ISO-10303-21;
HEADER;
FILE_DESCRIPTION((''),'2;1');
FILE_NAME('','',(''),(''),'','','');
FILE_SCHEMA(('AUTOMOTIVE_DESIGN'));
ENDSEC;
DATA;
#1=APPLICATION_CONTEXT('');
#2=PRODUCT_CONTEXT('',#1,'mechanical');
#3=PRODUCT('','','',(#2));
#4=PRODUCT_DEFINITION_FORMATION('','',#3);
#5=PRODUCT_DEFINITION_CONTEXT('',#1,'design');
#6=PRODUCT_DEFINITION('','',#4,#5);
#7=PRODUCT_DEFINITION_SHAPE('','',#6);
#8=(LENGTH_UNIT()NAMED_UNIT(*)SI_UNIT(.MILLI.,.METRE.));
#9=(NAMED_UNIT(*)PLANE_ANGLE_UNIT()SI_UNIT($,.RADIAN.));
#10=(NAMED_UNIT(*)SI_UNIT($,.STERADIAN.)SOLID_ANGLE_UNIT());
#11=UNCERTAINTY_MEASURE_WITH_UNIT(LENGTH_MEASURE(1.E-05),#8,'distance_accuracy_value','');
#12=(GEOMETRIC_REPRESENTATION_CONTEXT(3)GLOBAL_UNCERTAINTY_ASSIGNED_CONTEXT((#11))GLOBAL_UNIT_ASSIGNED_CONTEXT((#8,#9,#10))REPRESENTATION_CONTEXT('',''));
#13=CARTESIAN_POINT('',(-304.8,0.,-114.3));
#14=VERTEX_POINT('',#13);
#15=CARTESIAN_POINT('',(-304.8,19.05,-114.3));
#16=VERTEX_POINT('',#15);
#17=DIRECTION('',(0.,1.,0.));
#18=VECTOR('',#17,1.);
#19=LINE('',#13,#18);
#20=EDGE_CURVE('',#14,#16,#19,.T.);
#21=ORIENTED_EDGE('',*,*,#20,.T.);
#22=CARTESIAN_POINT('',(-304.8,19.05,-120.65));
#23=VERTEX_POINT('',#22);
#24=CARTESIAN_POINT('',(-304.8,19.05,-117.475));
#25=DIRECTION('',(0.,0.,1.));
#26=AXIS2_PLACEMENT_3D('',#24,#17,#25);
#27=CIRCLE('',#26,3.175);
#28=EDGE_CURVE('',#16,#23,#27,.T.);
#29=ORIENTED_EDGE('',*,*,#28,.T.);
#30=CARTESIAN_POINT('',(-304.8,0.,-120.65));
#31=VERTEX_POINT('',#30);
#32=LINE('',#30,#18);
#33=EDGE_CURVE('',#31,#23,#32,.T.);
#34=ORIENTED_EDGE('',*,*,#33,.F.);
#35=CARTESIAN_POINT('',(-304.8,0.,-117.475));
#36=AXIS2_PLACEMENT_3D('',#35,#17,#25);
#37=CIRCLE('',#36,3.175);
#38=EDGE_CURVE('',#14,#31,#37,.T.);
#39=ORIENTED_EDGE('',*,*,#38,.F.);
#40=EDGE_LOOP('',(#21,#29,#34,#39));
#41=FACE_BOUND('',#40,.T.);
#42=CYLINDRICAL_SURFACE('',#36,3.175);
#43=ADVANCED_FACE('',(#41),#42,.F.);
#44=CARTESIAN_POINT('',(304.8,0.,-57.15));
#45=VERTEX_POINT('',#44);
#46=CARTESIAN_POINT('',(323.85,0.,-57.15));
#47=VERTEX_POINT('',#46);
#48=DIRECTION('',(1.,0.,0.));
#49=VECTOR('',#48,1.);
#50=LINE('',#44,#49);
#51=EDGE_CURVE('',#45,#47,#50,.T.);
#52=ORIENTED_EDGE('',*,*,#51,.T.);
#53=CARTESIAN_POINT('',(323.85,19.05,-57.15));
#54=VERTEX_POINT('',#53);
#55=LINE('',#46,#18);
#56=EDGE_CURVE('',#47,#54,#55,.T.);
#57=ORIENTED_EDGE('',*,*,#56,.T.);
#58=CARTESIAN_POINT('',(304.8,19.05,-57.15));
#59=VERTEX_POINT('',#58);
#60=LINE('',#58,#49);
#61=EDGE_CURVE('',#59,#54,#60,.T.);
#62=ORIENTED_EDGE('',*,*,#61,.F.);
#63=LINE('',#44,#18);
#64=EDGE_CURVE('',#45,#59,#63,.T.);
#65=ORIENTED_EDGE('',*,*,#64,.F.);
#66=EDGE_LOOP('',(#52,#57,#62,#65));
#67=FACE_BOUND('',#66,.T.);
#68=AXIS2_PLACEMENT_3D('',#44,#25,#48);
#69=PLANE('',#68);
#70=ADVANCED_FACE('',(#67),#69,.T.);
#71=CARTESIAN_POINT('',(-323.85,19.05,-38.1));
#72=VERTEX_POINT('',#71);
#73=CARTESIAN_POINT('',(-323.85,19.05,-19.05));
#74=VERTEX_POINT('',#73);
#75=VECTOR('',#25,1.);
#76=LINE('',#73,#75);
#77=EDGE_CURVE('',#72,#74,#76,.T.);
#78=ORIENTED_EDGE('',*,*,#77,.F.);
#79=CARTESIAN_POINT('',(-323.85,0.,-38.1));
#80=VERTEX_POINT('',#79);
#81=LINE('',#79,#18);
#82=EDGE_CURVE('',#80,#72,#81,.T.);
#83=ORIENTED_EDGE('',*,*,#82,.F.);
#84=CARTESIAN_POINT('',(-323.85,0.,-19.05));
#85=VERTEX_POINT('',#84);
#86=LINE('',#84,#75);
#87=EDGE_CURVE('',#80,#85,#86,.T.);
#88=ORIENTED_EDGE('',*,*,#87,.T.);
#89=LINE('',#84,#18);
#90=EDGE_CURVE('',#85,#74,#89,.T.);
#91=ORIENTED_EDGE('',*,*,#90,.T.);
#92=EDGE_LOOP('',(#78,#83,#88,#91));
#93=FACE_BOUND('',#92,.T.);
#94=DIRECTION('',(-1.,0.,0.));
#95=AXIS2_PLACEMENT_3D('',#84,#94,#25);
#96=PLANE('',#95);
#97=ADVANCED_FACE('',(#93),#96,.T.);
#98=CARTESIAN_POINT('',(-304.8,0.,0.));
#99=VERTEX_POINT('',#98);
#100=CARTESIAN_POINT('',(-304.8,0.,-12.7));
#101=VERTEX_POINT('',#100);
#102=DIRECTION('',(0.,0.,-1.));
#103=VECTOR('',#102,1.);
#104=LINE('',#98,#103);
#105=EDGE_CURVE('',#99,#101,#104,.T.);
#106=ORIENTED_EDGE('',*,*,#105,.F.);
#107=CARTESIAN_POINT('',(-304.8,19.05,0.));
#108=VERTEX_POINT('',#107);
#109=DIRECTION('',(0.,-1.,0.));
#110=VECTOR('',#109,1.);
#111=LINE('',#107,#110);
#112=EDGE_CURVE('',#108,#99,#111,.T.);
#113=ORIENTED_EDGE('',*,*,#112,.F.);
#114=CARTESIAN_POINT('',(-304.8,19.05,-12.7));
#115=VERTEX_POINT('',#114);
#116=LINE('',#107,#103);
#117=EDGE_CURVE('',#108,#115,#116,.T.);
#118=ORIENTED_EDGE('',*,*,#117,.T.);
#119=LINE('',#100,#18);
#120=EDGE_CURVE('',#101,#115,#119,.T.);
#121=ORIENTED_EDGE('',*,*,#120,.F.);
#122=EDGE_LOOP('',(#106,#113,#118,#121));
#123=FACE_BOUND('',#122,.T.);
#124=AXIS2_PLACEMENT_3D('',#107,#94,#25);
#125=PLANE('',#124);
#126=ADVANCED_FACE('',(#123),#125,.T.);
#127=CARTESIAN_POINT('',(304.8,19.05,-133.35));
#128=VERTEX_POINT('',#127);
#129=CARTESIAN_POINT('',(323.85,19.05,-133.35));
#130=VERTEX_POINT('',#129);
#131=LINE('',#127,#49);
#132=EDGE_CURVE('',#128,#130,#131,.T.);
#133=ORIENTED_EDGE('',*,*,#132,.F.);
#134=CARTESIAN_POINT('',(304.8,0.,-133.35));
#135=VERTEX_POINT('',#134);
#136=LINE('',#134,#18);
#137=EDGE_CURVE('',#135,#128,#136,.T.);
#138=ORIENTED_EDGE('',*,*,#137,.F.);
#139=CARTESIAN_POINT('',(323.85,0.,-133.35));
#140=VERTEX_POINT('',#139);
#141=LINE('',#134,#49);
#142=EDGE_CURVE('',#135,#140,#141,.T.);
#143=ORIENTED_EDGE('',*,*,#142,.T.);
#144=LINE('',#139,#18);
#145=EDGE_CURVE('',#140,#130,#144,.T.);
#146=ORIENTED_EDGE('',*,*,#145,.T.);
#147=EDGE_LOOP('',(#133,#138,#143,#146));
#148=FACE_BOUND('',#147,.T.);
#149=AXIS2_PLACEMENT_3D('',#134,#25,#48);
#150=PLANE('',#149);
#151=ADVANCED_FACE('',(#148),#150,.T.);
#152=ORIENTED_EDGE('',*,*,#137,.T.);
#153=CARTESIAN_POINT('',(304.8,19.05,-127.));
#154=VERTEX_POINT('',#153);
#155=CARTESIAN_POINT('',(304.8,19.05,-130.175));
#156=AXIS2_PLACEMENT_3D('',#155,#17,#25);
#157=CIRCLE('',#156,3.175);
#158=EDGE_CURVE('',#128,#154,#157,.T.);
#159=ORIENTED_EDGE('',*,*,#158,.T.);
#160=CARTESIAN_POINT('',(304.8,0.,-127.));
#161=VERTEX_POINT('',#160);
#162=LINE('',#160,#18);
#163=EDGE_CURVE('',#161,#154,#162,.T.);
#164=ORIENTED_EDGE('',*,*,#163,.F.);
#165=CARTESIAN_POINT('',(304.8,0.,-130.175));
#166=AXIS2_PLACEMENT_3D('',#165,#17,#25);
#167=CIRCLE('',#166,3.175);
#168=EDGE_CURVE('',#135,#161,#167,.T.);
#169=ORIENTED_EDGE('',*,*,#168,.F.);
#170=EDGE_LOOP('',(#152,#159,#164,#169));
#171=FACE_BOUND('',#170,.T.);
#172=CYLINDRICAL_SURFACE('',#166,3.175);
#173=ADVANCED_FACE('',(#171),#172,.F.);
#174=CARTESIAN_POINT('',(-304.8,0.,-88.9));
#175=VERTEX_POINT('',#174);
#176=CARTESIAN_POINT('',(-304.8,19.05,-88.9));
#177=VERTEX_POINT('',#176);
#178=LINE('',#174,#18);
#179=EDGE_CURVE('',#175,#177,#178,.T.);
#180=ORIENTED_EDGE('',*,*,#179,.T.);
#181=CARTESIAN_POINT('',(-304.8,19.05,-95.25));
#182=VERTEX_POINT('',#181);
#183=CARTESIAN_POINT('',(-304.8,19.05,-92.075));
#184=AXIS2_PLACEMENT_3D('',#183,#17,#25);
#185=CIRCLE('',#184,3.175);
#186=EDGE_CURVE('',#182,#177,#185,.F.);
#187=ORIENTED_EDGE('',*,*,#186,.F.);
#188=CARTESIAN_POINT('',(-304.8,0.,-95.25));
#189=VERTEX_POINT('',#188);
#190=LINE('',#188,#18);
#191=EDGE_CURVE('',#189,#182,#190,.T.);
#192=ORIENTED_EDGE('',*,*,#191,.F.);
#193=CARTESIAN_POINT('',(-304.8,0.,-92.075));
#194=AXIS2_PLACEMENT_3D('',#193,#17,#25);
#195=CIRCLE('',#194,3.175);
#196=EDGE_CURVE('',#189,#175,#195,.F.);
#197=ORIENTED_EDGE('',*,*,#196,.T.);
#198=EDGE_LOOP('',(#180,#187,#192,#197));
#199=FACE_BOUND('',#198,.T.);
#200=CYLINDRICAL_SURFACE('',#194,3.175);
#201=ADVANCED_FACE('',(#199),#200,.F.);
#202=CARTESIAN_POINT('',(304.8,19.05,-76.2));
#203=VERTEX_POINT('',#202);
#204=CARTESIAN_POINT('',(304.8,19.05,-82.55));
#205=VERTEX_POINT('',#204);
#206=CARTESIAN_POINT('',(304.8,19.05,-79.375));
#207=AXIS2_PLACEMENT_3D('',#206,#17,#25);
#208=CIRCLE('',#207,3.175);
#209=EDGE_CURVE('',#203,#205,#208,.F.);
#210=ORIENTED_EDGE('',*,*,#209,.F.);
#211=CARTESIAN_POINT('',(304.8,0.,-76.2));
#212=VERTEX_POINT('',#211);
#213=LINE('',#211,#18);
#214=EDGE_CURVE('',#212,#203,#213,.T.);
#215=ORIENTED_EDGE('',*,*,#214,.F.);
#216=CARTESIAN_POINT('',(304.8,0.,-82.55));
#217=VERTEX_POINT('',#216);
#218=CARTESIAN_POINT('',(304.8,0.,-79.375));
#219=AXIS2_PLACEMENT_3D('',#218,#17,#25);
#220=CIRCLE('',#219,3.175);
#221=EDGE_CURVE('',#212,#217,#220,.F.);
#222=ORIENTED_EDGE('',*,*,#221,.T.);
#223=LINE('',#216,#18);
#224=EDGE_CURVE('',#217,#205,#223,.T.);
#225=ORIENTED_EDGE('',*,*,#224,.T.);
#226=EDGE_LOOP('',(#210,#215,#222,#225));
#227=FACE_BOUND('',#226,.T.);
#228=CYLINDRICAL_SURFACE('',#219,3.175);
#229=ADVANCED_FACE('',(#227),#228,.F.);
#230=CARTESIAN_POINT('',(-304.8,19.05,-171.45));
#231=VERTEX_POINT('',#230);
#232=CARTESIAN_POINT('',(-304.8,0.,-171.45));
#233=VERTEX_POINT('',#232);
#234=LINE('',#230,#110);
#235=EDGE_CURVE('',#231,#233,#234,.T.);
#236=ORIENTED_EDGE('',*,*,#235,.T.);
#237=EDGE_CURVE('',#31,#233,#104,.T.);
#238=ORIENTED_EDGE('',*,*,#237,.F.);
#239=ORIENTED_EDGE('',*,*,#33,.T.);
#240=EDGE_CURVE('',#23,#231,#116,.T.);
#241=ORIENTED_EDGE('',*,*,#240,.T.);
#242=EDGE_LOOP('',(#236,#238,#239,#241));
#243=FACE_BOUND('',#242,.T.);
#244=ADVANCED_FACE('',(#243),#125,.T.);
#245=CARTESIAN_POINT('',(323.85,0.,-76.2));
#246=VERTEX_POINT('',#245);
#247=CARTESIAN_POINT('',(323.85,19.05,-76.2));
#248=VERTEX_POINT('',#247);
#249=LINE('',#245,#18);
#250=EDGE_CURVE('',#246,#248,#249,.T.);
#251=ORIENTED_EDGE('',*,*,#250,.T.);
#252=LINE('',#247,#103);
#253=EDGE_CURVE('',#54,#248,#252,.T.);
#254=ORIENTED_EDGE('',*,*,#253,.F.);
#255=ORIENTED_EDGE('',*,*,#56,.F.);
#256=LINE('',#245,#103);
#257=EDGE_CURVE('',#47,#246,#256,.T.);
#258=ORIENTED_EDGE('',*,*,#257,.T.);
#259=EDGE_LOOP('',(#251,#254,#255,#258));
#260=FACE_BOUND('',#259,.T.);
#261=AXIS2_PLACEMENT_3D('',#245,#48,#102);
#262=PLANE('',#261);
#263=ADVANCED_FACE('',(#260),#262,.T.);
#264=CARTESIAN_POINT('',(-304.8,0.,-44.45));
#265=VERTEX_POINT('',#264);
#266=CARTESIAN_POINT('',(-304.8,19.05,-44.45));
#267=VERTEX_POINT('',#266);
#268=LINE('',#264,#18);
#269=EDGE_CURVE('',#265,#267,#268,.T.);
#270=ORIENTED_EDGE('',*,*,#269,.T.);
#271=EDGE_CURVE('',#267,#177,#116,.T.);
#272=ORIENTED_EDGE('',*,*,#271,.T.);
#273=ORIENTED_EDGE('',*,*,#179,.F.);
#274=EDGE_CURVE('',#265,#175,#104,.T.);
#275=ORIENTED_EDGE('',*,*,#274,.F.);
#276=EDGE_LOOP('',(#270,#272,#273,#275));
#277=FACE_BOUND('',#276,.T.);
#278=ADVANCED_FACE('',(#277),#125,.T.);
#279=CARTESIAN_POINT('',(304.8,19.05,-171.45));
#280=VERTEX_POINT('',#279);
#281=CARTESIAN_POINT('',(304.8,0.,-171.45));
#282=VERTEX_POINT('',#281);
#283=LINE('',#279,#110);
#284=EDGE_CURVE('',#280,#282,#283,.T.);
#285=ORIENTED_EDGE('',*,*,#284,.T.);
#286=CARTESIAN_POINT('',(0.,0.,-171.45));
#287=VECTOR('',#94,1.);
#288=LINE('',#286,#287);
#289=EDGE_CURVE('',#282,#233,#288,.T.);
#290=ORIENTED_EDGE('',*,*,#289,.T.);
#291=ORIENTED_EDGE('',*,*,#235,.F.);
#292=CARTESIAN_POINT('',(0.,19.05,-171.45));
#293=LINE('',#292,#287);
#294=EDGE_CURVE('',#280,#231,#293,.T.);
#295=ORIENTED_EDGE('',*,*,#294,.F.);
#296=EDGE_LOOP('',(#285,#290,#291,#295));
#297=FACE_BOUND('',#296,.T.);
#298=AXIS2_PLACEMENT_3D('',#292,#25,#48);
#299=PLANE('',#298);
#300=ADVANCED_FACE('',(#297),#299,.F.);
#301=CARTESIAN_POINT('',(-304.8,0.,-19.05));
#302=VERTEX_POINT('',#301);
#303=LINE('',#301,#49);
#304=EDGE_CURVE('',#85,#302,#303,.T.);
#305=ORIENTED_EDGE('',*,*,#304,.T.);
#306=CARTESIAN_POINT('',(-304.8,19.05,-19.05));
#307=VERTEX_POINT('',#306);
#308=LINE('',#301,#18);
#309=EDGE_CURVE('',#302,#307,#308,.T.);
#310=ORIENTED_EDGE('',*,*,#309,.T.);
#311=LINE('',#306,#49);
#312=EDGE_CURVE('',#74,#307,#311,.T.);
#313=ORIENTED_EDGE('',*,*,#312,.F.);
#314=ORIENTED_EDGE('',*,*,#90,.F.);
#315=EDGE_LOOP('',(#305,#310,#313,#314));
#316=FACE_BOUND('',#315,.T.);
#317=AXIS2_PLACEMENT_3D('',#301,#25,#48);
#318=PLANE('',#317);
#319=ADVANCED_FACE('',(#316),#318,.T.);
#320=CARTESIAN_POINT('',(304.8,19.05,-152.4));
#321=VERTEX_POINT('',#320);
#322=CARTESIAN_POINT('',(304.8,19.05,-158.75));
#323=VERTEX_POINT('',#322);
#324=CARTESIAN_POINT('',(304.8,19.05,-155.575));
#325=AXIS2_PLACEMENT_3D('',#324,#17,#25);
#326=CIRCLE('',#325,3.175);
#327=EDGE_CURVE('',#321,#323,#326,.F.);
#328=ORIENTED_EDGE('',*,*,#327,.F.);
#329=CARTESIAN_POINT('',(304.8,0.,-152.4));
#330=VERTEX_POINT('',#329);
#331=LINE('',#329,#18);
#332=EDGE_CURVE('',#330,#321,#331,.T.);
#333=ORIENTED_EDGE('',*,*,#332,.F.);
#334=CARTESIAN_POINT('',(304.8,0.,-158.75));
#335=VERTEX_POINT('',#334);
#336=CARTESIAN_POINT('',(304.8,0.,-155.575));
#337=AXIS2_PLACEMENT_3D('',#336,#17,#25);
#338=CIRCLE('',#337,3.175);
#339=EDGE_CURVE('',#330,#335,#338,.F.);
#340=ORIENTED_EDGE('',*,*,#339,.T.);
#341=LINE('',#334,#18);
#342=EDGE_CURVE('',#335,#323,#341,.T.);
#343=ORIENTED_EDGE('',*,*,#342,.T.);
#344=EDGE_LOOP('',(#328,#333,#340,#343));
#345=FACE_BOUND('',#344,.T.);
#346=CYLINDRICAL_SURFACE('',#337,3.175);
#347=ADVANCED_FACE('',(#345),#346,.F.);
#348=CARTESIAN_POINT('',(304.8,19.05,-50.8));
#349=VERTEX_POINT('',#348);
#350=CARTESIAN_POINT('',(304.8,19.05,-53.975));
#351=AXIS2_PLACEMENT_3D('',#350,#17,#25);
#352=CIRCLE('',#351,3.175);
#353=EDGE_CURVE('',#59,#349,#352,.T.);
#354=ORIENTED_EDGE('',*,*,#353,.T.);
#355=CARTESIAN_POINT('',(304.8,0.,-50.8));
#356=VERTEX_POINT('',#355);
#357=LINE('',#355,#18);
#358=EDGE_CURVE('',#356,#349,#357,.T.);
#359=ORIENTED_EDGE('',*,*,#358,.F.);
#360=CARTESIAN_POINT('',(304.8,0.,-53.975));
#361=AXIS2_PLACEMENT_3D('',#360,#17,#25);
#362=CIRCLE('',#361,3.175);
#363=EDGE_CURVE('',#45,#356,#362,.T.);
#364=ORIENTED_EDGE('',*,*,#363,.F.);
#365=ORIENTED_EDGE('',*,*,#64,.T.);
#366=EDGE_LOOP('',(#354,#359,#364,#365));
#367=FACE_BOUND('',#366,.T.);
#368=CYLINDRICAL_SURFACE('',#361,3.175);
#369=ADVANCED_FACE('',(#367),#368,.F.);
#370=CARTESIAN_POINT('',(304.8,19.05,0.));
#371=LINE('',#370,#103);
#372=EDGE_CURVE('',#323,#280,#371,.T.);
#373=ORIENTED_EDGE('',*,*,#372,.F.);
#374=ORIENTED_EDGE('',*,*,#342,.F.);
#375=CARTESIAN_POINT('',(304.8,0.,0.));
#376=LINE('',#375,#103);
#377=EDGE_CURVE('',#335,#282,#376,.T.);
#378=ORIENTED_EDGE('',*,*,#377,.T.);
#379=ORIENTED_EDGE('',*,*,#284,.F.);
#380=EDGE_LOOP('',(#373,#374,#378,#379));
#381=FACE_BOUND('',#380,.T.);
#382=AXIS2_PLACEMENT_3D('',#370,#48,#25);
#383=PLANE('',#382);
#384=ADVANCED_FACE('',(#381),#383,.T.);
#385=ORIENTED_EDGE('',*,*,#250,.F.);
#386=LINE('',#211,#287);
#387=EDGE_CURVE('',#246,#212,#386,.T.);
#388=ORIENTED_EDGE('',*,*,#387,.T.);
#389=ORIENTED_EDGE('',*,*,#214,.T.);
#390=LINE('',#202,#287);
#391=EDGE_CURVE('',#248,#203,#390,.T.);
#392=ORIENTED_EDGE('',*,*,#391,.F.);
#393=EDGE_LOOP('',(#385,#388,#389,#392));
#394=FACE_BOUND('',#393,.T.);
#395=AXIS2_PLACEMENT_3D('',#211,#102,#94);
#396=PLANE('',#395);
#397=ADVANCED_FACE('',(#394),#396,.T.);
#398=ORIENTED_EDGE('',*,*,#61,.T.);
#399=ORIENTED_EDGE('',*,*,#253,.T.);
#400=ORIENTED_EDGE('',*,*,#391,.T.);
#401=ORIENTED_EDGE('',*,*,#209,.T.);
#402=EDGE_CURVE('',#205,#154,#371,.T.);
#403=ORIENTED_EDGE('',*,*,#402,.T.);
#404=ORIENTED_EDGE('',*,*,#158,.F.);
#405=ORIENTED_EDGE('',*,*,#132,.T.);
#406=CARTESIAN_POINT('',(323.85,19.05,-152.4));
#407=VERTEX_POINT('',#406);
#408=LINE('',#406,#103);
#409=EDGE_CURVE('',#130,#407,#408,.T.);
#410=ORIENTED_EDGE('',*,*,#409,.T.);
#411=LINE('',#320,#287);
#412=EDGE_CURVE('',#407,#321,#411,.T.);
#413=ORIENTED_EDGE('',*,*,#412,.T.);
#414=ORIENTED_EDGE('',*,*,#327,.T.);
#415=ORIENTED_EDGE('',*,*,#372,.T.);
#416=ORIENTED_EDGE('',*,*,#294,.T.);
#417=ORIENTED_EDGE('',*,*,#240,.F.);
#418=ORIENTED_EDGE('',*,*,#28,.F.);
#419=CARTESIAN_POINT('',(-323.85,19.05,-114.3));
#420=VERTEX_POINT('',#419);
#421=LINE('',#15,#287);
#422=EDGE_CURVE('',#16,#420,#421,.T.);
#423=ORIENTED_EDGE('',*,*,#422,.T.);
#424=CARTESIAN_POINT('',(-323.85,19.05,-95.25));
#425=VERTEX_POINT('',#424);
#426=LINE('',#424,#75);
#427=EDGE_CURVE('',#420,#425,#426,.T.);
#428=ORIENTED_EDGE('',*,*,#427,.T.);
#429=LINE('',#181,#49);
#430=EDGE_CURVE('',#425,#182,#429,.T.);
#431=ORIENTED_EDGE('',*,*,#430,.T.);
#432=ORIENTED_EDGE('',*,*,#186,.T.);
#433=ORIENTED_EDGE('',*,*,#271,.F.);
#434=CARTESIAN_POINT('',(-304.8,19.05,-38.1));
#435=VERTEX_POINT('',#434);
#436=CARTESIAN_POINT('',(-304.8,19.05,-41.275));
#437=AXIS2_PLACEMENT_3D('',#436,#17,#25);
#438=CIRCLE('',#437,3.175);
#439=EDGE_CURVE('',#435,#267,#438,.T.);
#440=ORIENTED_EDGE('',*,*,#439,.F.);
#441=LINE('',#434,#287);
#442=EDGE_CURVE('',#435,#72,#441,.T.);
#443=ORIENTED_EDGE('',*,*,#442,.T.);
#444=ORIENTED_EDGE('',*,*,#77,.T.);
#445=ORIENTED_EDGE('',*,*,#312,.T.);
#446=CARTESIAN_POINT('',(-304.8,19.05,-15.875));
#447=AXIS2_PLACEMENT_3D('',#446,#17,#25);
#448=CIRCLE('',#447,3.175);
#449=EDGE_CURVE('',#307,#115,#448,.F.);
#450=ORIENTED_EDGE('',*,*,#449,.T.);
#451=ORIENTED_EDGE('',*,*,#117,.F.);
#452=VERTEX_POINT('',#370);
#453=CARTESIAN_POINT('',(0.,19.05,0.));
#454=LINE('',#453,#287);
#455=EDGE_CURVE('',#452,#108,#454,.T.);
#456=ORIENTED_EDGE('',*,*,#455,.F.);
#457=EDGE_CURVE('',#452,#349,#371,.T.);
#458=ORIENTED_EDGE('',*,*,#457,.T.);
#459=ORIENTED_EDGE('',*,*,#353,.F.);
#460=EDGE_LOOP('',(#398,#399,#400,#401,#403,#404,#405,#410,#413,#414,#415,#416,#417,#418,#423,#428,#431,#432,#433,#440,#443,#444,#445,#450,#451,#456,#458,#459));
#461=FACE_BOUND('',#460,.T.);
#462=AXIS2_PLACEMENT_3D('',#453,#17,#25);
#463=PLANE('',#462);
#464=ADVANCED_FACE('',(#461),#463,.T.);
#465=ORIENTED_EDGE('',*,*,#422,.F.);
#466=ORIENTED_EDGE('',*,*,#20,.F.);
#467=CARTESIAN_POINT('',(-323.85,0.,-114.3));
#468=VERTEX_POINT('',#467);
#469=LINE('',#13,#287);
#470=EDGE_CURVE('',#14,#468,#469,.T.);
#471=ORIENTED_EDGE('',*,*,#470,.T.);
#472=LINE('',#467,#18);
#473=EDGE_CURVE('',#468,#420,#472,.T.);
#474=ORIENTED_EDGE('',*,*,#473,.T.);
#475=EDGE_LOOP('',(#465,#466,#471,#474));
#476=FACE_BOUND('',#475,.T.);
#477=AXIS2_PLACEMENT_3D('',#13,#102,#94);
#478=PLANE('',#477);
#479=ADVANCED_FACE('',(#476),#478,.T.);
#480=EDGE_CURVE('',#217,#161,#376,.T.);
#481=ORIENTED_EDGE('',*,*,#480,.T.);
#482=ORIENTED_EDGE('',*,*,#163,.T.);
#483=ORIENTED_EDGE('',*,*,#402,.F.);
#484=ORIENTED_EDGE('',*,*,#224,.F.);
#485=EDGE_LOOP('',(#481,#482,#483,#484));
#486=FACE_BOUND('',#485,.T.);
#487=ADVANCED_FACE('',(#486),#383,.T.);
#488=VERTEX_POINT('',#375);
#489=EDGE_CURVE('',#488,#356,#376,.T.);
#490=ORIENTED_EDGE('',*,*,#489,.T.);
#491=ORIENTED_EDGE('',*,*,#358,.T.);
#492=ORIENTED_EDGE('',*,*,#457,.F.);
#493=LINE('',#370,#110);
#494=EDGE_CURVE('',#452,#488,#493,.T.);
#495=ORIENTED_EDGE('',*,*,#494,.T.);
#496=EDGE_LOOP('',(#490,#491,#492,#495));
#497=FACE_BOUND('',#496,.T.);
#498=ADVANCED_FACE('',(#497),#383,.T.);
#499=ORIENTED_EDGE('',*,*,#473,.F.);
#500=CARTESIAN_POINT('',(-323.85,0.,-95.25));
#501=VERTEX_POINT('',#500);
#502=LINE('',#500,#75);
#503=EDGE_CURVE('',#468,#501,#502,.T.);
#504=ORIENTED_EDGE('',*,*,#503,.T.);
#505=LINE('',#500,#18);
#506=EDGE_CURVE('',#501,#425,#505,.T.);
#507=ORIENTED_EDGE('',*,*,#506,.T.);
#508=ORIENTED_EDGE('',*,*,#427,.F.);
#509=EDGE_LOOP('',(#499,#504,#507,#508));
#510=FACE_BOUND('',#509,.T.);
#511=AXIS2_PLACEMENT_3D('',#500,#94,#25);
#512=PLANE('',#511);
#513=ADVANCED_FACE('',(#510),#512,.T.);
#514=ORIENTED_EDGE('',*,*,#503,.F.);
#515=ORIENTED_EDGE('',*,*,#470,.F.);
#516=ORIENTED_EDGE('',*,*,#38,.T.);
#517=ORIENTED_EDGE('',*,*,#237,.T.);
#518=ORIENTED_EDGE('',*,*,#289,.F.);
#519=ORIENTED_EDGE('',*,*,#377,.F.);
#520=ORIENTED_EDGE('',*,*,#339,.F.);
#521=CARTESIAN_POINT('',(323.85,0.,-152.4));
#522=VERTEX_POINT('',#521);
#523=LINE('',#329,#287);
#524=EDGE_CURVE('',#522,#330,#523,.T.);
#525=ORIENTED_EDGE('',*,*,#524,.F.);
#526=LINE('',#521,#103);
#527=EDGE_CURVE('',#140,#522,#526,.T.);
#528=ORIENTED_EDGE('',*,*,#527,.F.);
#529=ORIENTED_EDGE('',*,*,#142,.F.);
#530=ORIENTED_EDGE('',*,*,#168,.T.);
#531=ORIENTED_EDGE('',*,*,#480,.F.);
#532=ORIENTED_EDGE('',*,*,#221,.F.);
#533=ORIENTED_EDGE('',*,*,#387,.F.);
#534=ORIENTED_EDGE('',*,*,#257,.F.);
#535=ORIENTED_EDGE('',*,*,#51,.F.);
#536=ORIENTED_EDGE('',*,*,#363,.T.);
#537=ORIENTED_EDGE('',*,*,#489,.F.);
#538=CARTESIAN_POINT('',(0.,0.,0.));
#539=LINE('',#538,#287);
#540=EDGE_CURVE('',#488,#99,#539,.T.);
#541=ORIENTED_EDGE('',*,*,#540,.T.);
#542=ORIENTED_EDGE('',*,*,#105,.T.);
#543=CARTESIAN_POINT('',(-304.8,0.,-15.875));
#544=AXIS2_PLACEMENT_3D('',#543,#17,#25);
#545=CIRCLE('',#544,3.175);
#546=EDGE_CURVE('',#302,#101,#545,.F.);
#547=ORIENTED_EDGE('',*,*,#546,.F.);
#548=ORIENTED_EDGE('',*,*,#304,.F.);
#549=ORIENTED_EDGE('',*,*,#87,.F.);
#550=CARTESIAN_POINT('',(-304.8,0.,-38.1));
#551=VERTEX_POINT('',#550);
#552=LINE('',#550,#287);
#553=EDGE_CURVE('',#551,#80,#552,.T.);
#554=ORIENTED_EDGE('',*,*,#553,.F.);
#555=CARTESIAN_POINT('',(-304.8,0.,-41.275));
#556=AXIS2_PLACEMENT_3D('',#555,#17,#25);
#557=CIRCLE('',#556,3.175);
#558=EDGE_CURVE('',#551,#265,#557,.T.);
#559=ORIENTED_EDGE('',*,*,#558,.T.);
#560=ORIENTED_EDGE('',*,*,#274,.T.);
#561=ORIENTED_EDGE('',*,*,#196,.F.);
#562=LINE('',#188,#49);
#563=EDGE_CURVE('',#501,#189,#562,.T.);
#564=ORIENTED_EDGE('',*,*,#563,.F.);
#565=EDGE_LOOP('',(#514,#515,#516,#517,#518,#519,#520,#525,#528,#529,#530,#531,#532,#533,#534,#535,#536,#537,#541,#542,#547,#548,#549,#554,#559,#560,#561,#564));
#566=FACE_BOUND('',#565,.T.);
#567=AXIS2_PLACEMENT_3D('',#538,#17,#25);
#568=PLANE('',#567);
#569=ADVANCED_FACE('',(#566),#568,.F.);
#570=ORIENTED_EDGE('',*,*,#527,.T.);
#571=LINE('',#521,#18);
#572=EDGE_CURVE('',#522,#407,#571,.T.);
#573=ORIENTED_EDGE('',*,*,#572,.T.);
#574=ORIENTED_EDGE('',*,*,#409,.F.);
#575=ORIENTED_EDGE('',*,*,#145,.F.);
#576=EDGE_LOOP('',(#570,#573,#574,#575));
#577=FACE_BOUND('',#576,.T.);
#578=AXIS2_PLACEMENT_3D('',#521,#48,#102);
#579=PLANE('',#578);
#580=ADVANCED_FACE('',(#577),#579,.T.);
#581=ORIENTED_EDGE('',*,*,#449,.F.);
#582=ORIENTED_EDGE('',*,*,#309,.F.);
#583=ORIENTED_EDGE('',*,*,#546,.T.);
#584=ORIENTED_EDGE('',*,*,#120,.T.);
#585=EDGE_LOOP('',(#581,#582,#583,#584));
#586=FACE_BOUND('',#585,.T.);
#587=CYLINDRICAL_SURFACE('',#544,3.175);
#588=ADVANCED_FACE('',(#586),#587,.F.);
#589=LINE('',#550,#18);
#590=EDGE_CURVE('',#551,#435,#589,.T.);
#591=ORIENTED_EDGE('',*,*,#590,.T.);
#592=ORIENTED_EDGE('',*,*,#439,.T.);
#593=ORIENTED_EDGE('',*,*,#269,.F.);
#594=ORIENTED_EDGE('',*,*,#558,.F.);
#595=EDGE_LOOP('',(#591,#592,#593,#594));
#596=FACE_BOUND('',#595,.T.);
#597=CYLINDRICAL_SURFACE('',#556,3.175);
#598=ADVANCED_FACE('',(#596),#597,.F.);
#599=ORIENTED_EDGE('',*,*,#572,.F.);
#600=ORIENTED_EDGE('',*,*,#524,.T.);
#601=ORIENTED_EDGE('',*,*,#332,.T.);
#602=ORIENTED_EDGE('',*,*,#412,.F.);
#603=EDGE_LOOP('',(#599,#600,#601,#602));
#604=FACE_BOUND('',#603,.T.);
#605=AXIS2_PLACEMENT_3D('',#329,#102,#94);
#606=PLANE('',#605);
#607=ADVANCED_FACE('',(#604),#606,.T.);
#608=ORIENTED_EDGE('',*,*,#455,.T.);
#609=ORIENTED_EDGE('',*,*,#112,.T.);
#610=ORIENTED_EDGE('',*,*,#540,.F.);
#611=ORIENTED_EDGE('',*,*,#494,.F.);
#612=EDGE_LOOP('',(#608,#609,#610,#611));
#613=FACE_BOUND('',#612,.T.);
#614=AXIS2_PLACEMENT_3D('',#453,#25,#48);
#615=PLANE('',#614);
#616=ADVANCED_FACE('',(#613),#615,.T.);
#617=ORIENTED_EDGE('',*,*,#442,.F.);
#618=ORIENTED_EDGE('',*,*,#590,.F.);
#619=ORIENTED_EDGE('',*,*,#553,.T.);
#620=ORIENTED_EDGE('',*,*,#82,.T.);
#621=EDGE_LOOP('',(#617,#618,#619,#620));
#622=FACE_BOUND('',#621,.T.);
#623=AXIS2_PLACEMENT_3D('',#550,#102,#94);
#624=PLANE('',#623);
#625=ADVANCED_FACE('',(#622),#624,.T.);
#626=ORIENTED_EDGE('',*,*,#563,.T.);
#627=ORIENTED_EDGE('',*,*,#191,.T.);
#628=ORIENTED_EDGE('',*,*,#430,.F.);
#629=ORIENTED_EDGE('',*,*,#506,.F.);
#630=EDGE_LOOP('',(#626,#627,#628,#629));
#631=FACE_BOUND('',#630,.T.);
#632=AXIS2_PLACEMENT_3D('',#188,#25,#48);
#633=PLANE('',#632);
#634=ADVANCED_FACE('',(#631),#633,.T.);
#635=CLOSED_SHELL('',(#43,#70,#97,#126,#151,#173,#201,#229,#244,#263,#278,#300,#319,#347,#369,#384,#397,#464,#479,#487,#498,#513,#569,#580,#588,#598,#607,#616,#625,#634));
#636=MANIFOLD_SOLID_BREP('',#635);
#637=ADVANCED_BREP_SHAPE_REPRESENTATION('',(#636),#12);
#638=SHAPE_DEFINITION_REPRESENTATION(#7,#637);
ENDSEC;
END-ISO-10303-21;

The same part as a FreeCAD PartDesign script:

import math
import FreeCAD as App
import Part
import Sketcher

V = App.Vector
Q = App.Units.Quantity


def add_polygon(sketch, points):
    """Adds a closed chain of lines whose ends are joined by coincident constraints."""
    first, n = sketch.GeometryCount, len(points)
    for a, b in zip(points, points[1:] + points[:1]):
        sketch.addGeometry(Part.LineSegment(App.Vector(*a, 0), App.Vector(*b, 0)), False)
    for i in range(n):
        sketch.addConstraint(Sketcher.Constraint("Coincident", first + i, 2, first + (i + 1) % n, 1))

doc = App.newDocument("Part")
body = doc.addObject("PartDesign::Body", "Body")

# Sketch on XZ plane
sketch1 = doc.addObject("Sketcher::SketchObject", "Sketch")
body.addObject(sketch1)
sketch1.AttachmentSupport = (doc.XZ_Plane, [""])
sketch1.MapMode = "FlatFace"
add_polygon(sketch1, [(-305, -171), (-305, 0), (0, 0), (0, -171)])  # lines 0-3
sketch1.addConstraint([
    Sketcher.Constraint("Vertical", 0),
    Sketcher.Constraint("Horizontal", 1),
    Sketcher.Constraint("Vertical", 2),
    Sketcher.Constraint("Horizontal", 3),
    Sketcher.Constraint("Coincident", 1, 2, -1, 1),
    Sketcher.Constraint("DistanceX", 1, 1, 1, 2, Q("12 in")),
    Sketcher.Constraint("DistanceY", 0, 1, 0, 2, Q("6.75 in")),
])
pad1 = doc.addObject("PartDesign::Pad", "Pad")
body.addObject(pad1)
pad1.Profile = sketch1
pad1.Length = Q("0.75 in")
pad1.Reversed = True
body2 = doc.addObject("PartDesign::Body", "Body001")
doc.recompute()

body2.BaseFeature = body
doc.recompute()

mirroring = doc.addObject("Part::Mirroring", "Mirroring")
mirroring.Source = body
mirroring.Base = V(0, 19.05, 0)
mirroring.Normal = V(-1, 0, 0)
body3 = doc.addObject("PartDesign::Body", "Body002")
body3.BaseFeature = mirroring
boolean = doc.addObject("PartDesign::Boolean", "Boolean")
body2.addObject(boolean)
boolean.Type = "Fuse"
boolean.addObjects([body3])
doc.recompute()

# Sketch on XZ plane
sketch2 = doc.addObject("Sketcher::SketchObject", "Sketch001")
body2.addObject(sketch2)
sketch2.AttachmentSupport = (doc.getObject("XZ_Plane001"), [""])
sketch2.MapMode = "FlatFace"
sketch2.AttachmentOffset = App.Placement(V(0, 0, -0.75 * 25.4), App.Rotation())
add_polygon(sketch2, [(-324, -38), (-324, -19), (-305, -19), (-305, -38)])  # lines 0-3
add_polygon(sketch2, [(-324, -114), (-324, -95), (-305, -95), (-305, -114)])  # lines 4-7
add_polygon(sketch2, [(305, -152), (305, -133), (324, -133), (324, -152)])  # lines 8-11
add_polygon(sketch2, [(305, -76), (305, -57), (324, -57), (324, -76)])  # lines 12-15
sketch2.addConstraint([
    Sketcher.Constraint("Vertical", 0),
    Sketcher.Constraint("Horizontal", 1),
    Sketcher.Constraint("Vertical", 2),
    Sketcher.Constraint("Horizontal", 3),
    Sketcher.Constraint("Vertical", 4),
    Sketcher.Constraint("Horizontal", 5),
    Sketcher.Constraint("Vertical", 6),
    Sketcher.Constraint("Horizontal", 7),
    Sketcher.Constraint("Vertical", 8),
    Sketcher.Constraint("Horizontal", 9),
    Sketcher.Constraint("Vertical", 10),
    Sketcher.Constraint("Horizontal", 11),
    Sketcher.Constraint("Vertical", 12),
    Sketcher.Constraint("Horizontal", 13),
    Sketcher.Constraint("Vertical", 14),
    Sketcher.Constraint("Horizontal", 15),
    Sketcher.Constraint("Vertical", 3, 2, 4, 2),
    Sketcher.Constraint("Vertical", 2, 2, 5, 2),
    Sketcher.Constraint("Vertical", 11, 2, 12, 2),
    Sketcher.Constraint("Vertical", 10, 2, 13, 2),
    Sketcher.Constraint("Equal", 7, 9),
    Sketcher.Constraint("Equal", 15, 0),
    Sketcher.Constraint("Equal", 2, 4),
    Sketcher.Constraint("Equal", 6, 8),
    Sketcher.Constraint("Equal", 10, 12),
    Sketcher.Constraint("DistanceX", 1, 2, -1, 1, Q("12 in")),
    Sketcher.Constraint("DistanceX", -1, 1, 8, 2, Q("12 in")),
    Sketcher.Constraint("DistanceY", 10, 2, -1, 1, Q("6 in")),
    Sketcher.Constraint("DistanceY", 14, 2, -1, 1, Q("3 in")),
    Sketcher.Constraint("DistanceY", 4, 2, 0, 2, Q("3 in")),
    Sketcher.Constraint("DistanceX", 1, 1, 1, 2, Q("0.75 in")),
    Sketcher.Constraint("DistanceY", 2, 2, -1, 1, Q("1.5 in")),
])
pad2 = doc.addObject("PartDesign::Pad", "Pad001")
body2.addObject(pad2)
pad2.Profile = sketch2
pad2.Length = Q("0.75 in")

# Sketch on XZ plane
sketch3 = doc.addObject("Sketcher::SketchObject", "Sketch002")
body2.addObject(sketch3)
sketch3.AttachmentSupport = (doc.getObject("XZ_Plane001"), [""])
sketch3.MapMode = "FlatFace"
sketch3.AttachmentOffset = App.Placement(V(0, 0, -0.75 * 25.4), App.Rotation())
add_polygon(sketch3, [(-114, -19), (-114, 0), (-95, 0), (-95, -19)])  # lines 0-3
add_polygon(sketch3, [(-114, -171), (-114, -152), (-95, -152), (-95, -171)])  # lines 4-7
sketch3.addConstraint([
    Sketcher.Constraint("Vertical", 0),
    Sketcher.Constraint("Horizontal", 1),
    Sketcher.Constraint("Vertical", 2),
    Sketcher.Constraint("Horizontal", 3),
    Sketcher.Constraint("Vertical", 4),
    Sketcher.Constraint("Horizontal", 5),
    Sketcher.Constraint("Vertical", 6),
    Sketcher.Constraint("Horizontal", 7),
    Sketcher.Constraint("PointOnObject", 0, 2, -1),
    Sketcher.Constraint("Vertical", 3, 2, 4, 2),
    Sketcher.Constraint("Vertical", 2, 2, 5, 2),
    Sketcher.Constraint("Equal", 7, 0),
    Sketcher.Constraint("Equal", 2, 4),
    Sketcher.Constraint("DistanceY", 4, 2, -1, 1, Q("6 in")),
    Sketcher.Constraint("DistanceX", 1, 1, 1, 2, Q("0.75 in")),
    Sketcher.Constraint("DistanceX", 0, 2, -1, 1, Q("4.5 in")),
])
pocket1 = doc.addObject("PartDesign::Pocket", "Pocket")
body2.addObject(pocket1)
pocket1.Profile = sketch3
pocket1.Length = 735.857827
pocket1.Midplane = True
doc.recompute()

mirrored = doc.addObject("PartDesign::Mirrored", "Mirrored")
body2.addObject(mirrored)
mirrored.Originals = [pocket1]
mirrored.MirrorPlane = (doc.getObject("YZ_Plane001"), [""])
body2.Tip = mirrored

# Sketch on XZ plane
sketch4 = doc.addObject("Sketcher::SketchObject", "Sketch003")
body2.addObject(sketch4)
sketch4.AttachmentSupport = (doc.getObject("XZ_Plane001"), [""])
sketch4.MapMode = "FlatFace"
sketch4.AttachmentOffset = App.Placement(V(0, 0, -0.75 * 25.4), App.Rotation())
sketch4.addGeometry([
    Part.LineSegment(V(9.5, -131.5, 0), V(9.5, -141.6, 0)),  # 0
    Part.ArcOfCircle(Part.Circle(V(7.3, -143.8, 0), V(0, 0, 1), 3.2), math.radians(-135), math.radians(45)),  # 1
    Part.LineSegment(V(5, -146.1, 0), V(-5, -146.1, 0)),  # 2
    Part.ArcOfCircle(Part.Circle(V(-7.3, -143.8, 0), V(0, 0, 1), 3.2), math.radians(135), math.radians(315)),  # 3
    Part.LineSegment(V(-9.5, -141.6, 0), V(-9.5, -131.5, 0)),  # 4
    Part.ArcOfCircle(Part.Circle(V(-7.3, -129.2, 0), V(0, 0, 1), 3.2), math.radians(45), math.radians(225)),  # 5
    Part.LineSegment(V(-5, -127, 0), V(5, -127, 0)),  # 6
    Part.ArcOfCircle(Part.Circle(V(7.3, -129.2, 0), V(0, 0, 1), 3.2), math.radians(-45), math.radians(135)),  # 7
    Part.LineSegment(V(9.5, -80.7, 0), V(9.5, -90.8, 0)),  # 8
    Part.ArcOfCircle(Part.Circle(V(7.3, -93, 0), V(0, 0, 1), 3.2), math.radians(-135), math.radians(45)),  # 9
    Part.LineSegment(V(5, -95.2, 0), V(-5, -95.2, 0)),  # 10
    Part.ArcOfCircle(Part.Circle(V(-7.3, -93, 0), V(0, 0, 1), 3.2), math.radians(135), math.radians(315)),  # 11
    Part.LineSegment(V(-9.5, -90.8, 0), V(-9.5, -80.7, 0)),  # 12
    Part.ArcOfCircle(Part.Circle(V(-7.3, -78.4, 0), V(0, 0, 1), 3.2), math.radians(45), math.radians(225)),  # 13
    Part.LineSegment(V(-5, -76.2, 0), V(5, -76.2, 0)),  # 14
    Part.ArcOfCircle(Part.Circle(V(7.3, -78.4, 0), V(0, 0, 1), 3.2), math.radians(-45), math.radians(135)),  # 15
    Part.LineSegment(V(9.5, -29.9, 0), V(9.5, -40, 0)),  # 16
    Part.ArcOfCircle(Part.Circle(V(7.3, -42.2, 0), V(0, 0, 1), 3.2), math.radians(-135), math.radians(45)),  # 17
    Part.LineSegment(V(5, -44.5, 0), V(-5, -44.5, 0)),  # 18
    Part.ArcOfCircle(Part.Circle(V(-7.3, -42.2, 0), V(0, 0, 1), 3.2), math.radians(135), math.radians(315)),  # 19
    Part.LineSegment(V(-9.5, -40, 0), V(-9.5, -29.9, 0)),  # 20
    Part.ArcOfCircle(Part.Circle(V(-7.3, -27.6, 0), V(0, 0, 1), 3.2), math.radians(45), math.radians(225)),  # 21
    Part.LineSegment(V(-5, -25.4, 0), V(5, -25.4, 0)),  # 22
    Part.ArcOfCircle(Part.Circle(V(7.3, -27.6, 0), V(0, 0, 1), 3.2), math.radians(-45), math.radians(135)),  # 23
], False)
sketch4.addConstraint([
    Sketcher.Constraint("Coincident", 0, 2, 1, 2),
    Sketcher.Constraint("Coincident", 1, 1, 2, 1),
    Sketcher.Constraint("Coincident", 2, 2, 3, 2),
    Sketcher.Constraint("Coincident", 3, 1, 4, 1),
    Sketcher.Constraint("Coincident", 4, 2, 5, 2),
    Sketcher.Constraint("Coincident", 5, 1, 6, 1),
    Sketcher.Constraint("Coincident", 6, 2, 7, 2),
    Sketcher.Constraint("Coincident", 7, 1, 0, 1),
    Sketcher.Constraint("Coincident", 8, 2, 9, 2),
    Sketcher.Constraint("Coincident", 9, 1, 10, 1),
    Sketcher.Constraint("Coincident", 10, 2, 11, 2),
    Sketcher.Constraint("Coincident", 11, 1, 12, 1),
    Sketcher.Constraint("Coincident", 12, 2, 13, 2),
    Sketcher.Constraint("Coincident", 13, 1, 14, 1),
    Sketcher.Constraint("Coincident", 14, 2, 15, 2),
    Sketcher.Constraint("Coincident", 15, 1, 8, 1),
    Sketcher.Constraint("Coincident", 16, 2, 17, 2),
    Sketcher.Constraint("Coincident", 17, 1, 18, 1),
    Sketcher.Constraint("Coincident", 18, 2, 19, 2),
    Sketcher.Constraint("Coincident", 19, 1, 20, 1),
    Sketcher.Constraint("Coincident", 20, 2, 21, 2),
    Sketcher.Constraint("Coincident", 21, 1, 22, 1),
    Sketcher.Constraint("Coincident", 22, 2, 23, 2),
    Sketcher.Constraint("Coincident", 23, 1, 16, 1),
    Sketcher.Constraint("Vertical", 0),
    Sketcher.Constraint("Horizontal", 2),
    Sketcher.Constraint("Vertical", 4),
    Sketcher.Constraint("Horizontal", 6),
    Sketcher.Constraint("Vertical", 8),
    Sketcher.Constraint("Horizontal", 10),
    Sketcher.Constraint("Vertical", 12),
    Sketcher.Constraint("Horizontal", 14),
    Sketcher.Constraint("Vertical", 16),
    Sketcher.Constraint("Horizontal", 18),
    Sketcher.Constraint("Vertical", 20),
    Sketcher.Constraint("Horizontal", 22),
    Sketcher.Constraint("Equal", 1, 3),
    Sketcher.Constraint("Equal", 3, 5),
    Sketcher.Constraint("Equal", 5, 7),
    Sketcher.Constraint("Equal", 7, 9),
    Sketcher.Constraint("Equal", 9, 11),
    Sketcher.Constraint("Equal", 11, 13),
    Sketcher.Constraint("Equal", 13, 15),
    Sketcher.Constraint("Equal", 15, 17),
    Sketcher.Constraint("Equal", 17, 19),
    Sketcher.Constraint("Equal", 19, 21),
    Sketcher.Constraint("Equal", 21, 23),
    Sketcher.Constraint("Symmetric", 1, 3, 3, 3, -2),
    Sketcher.Constraint("Symmetric", 5, 3, 7, 3, -2),
    Sketcher.Constraint("Symmetric", 9, 3, 11, 3, -2),
    Sketcher.Constraint("Symmetric", 13, 3, 15, 3, -2),
    Sketcher.Constraint("Symmetric", 17, 3, 19, 3, -2),
    Sketcher.Constraint("Symmetric", 21, 3, 23, 3, -2),
    Sketcher.Constraint("Horizontal", 0, 2, 3, 1),
    Sketcher.Constraint("Horizontal", 8, 2, 11, 1),
    Sketcher.Constraint("Horizontal", 16, 2, 19, 1),
    Sketcher.Constraint("Vertical", 3, 3, 5, 3),
    Sketcher.Constraint("Vertical", 7, 3, 9, 3),
    Sketcher.Constraint("Vertical", 11, 3, 13, 3),
    Sketcher.Constraint("Vertical", 15, 3, 17, 3),
    Sketcher.Constraint("Vertical", 19, 3, 21, 3),
    Sketcher.Constraint("Vertical", 2, 2, 5, 1),
    Sketcher.Constraint("Vertical", 7, 1, 8, 2),
    Sketcher.Constraint("Vertical", 6, 2, 9, 1),
    Sketcher.Constraint("Vertical", 10, 2, 13, 1),
    Sketcher.Constraint("Vertical", 15, 1, 16, 2),
    Sketcher.Constraint("Vertical", 14, 2, 17, 1),
    Sketcher.Constraint("Vertical", 18, 2, 21, 1),
    Sketcher.Constraint("Equal", 22, 0),
    Sketcher.Constraint("Equal", 4, 8),
    Sketcher.Constraint("Equal", 12, 16),
    Sketcher.Constraint("DistanceY", 5, 1, -1, 1, Q("5 in")),
    Sketcher.Constraint("DistanceY", 13, 1, -1, 1, Q("3 in")),
    Sketcher.Constraint("DistanceY", 21, 1, -1, 1, Q("1 in")),
    Sketcher.Constraint("Radius", 1, Q("0.125 in")),
    Sketcher.Constraint("DistanceY", 1, 1, -1, 1, Q("5.75 in")),
    Sketcher.Constraint("DistanceX", -1, 1, 0, 2, Q("0.375 in")),
    Sketcher.Constraint("DistanceX", 3, 3, 1, 3, 14.559872),
])
pocket2 = doc.addObject("PartDesign::Pocket", "Pocket001")
body2.addObject(pocket2)
pocket2.Profile = sketch4
pocket2.Type = "ThroughAll"
pocket2.Midplane = True

# Sketch on XZ plane
sketch5 = doc.addObject("Sketcher::SketchObject", "Sketch004")
body2.addObject(sketch5)
sketch5.AttachmentSupport = (doc.getObject("XZ_Plane001"), [""])
sketch5.MapMode = "FlatFace"
sketch5.AttachmentOffset = App.Placement(V(0, 0, -0.75 * 25.4), App.Rotation())
sketch5.addGeometry([
    Part.LineSegment(V(-114.3, -167, 0), V(-114.3, -156.9, 0)),  # 0
    Part.ArcOfCircle(Part.Circle(V(-112.1, -154.6, 0), V(0, 0, 1), 3.2), math.radians(45), math.radians(225)),  # 1
    Part.LineSegment(V(-109.8, -152.4, 0), V(-99.7, -152.4, 0)),  # 2
    Part.ArcOfCircle(Part.Circle(V(-97.5, -154.6, 0), V(0, 0, 1), 3.2), math.radians(-45), math.radians(135)),  # 3
    Part.LineSegment(V(-95.2, -156.9, 0), V(-95.2, -167, 0)),  # 4
    Part.LineSegment(V(-95.2, -167, 0), V(-114.3, -167, 0)),  # 5
    Part.ArcOfCircle(Part.Circle(V(112.1, -154.6, 0), V(0, 0, 1), 3.2), math.radians(-45), math.radians(135)),  # 6
    Part.LineSegment(V(114.3, -156.9, 0), V(114.3, -167, 0)),  # 7
    Part.LineSegment(V(114.3, -167, 0), V(95.2, -167, 0)),  # 8
    Part.LineSegment(V(95.2, -167, 0), V(95.2, -156.9, 0)),  # 9
    Part.ArcOfCircle(Part.Circle(V(97.5, -154.6, 0), V(0, 0, 1), 3.2), math.radians(45), math.radians(225)),  # 10
    Part.LineSegment(V(99.7, -152.4, 0), V(109.8, -152.4, 0)),  # 11
    Part.ArcOfCircle(Part.Circle(V(97.5, -16.8, 0), V(0, 0, 1), 3.2), math.radians(135), math.radians(315)),  # 12
    Part.LineSegment(V(95.2, -14.6, 0), V(95.2, -4.5, 0)),  # 13
    Part.LineSegment(V(95.2, -4.5, 0), V(114.3, -4.5, 0)),  # 14
    Part.LineSegment(V(114.3, -4.5, 0), V(114.3, -14.6, 0)),  # 15
    Part.ArcOfCircle(Part.Circle(V(112.1, -16.8, 0), V(0, 0, 1), 3.2), math.radians(-135), math.radians(45)),  # 16
    Part.LineSegment(V(109.8, -19.1, 0), V(99.7, -19.1, 0)),  # 17
    Part.LineSegment(V(-95.2, -4.5, 0), V(-95.2, -14.6, 0)),  # 18
    Part.ArcOfCircle(Part.Circle(V(-97.5, -16.8, 0), V(0, 0, 1), 3.2), math.radians(-135), math.radians(45)),  # 19
    Part.LineSegment(V(-99.7, -19.1, 0), V(-109.8, -19.1, 0)),  # 20
    Part.ArcOfCircle(Part.Circle(V(-112.1, -16.8, 0), V(0, 0, 1), 3.2), math.radians(135), math.radians(315)),  # 21
    Part.LineSegment(V(-114.3, -14.6, 0), V(-114.3, -4.5, 0)),  # 22
    Part.LineSegment(V(-114.3, -4.5, 0), V(-95.2, -4.5, 0)),  # 23
], False)
sketch5.addConstraint([
    Sketcher.Constraint("Coincident", 0, 2, 1, 2),
    Sketcher.Constraint("Coincident", 1, 1, 2, 1),
    Sketcher.Constraint("Coincident", 2, 2, 3, 2),
    Sketcher.Constraint("Coincident", 3, 1, 4, 1),
    Sketcher.Constraint("Coincident", 4, 2, 5, 1),
    Sketcher.Constraint("Coincident", 5, 2, 0, 1),
    Sketcher.Constraint("Coincident", 6, 1, 7, 1),
    Sketcher.Constraint("Coincident", 7, 2, 8, 1),
    Sketcher.Constraint("Coincident", 8, 2, 9, 1),
    Sketcher.Constraint("Coincident", 9, 2, 10, 2),
    Sketcher.Constraint("Coincident", 10, 1, 11, 1),
    Sketcher.Constraint("Coincident", 11, 2, 6, 2),
    Sketcher.Constraint("Coincident", 12, 1, 13, 1),
    Sketcher.Constraint("Coincident", 13, 2, 14, 1),
    Sketcher.Constraint("Coincident", 14, 2, 15, 1),
    Sketcher.Constraint("Coincident", 15, 2, 16, 2),
    Sketcher.Constraint("Coincident", 16, 1, 17, 1),
    Sketcher.Constraint("Coincident", 17, 2, 12, 2),
    Sketcher.Constraint("Coincident", 18, 2, 19, 2),
    Sketcher.Constraint("Coincident", 19, 1, 20, 1),
    Sketcher.Constraint("Coincident", 20, 2, 21, 2),
    Sketcher.Constraint("Coincident", 21, 1, 22, 1),
    Sketcher.Constraint("Coincident", 22, 2, 23, 1),
    Sketcher.Constraint("Coincident", 23, 2, 18, 1),
    Sketcher.Constraint("Vertical", 0),
    Sketcher.Constraint("Horizontal", 2),
    Sketcher.Constraint("Vertical", 4),
    Sketcher.Constraint("Horizontal", 5),
    Sketcher.Constraint("Vertical", 7),
    Sketcher.Constraint("Horizontal", 8),
    Sketcher.Constraint("Vertical", 9),
    Sketcher.Constraint("Horizontal", 11),
    Sketcher.Constraint("Vertical", 13),
    Sketcher.Constraint("Horizontal", 14),
    Sketcher.Constraint("Vertical", 15),
    Sketcher.Constraint("Horizontal", 17),
    Sketcher.Constraint("Vertical", 18),
    Sketcher.Constraint("Horizontal", 20),
    Sketcher.Constraint("Vertical", 22),
    Sketcher.Constraint("Horizontal", 23),
    Sketcher.Constraint("Equal", 1, 3),
    Sketcher.Constraint("Equal", 3, 6),
    Sketcher.Constraint("Equal", 6, 10),
    Sketcher.Constraint("Equal", 10, 12),
    Sketcher.Constraint("Equal", 12, 16),
    Sketcher.Constraint("Equal", 16, 19),
    Sketcher.Constraint("Equal", 19, 21),
    Sketcher.Constraint("Symmetric", 1, 3, 6, 3, -2),
    Sketcher.Constraint("Symmetric", 3, 3, 10, 3, -2),
    Sketcher.Constraint("Symmetric", 12, 3, 19, 3, -2),
    Sketcher.Constraint("Symmetric", 16, 3, 21, 3, -2),
    Sketcher.Constraint("Symmetric", 5, 2, 7, 2, -2),
    Sketcher.Constraint("Symmetric", 14, 2, 22, 2, -2),
    Sketcher.Constraint("Horizontal", 1, 3, 3, 3),
    Sketcher.Constraint("Horizontal", 12, 3, 16, 3),
    Sketcher.Constraint("Horizontal", 0, 2, 3, 1),
    Sketcher.Constraint("Horizontal", 6, 1, 9, 2),
    Sketcher.Constraint("Horizontal", 2, 2, 10, 1),
    Sketcher.Constraint("Horizontal", 12, 1, 15, 2),
    Sketcher.Constraint("Horizontal", 15, 2, 18, 2),
    Sketcher.Constraint("Horizontal", 17, 2, 19, 1),
    Sketcher.Constraint("Vertical", 10, 3, 12, 3),
    Sketcher.Constraint("Vertical", 6, 3, 16, 3),
    Sketcher.Constraint("Vertical", 9, 2, 12, 1),
    Sketcher.Constraint("Vertical", 11, 2, 16, 1),
    Sketcher.Constraint("Equal", 20, 0),
    Sketcher.Constraint("Equal", 9, 13),
    Sketcher.Constraint("DistanceY", 1, 1, -1, 1, Q("6 in")),
    Sketcher.Constraint("Radius", 1, Q("0.125 in")),
    Sketcher.Constraint("DistanceX", 5, 2, 5, 1, Q("0.75 in")),
    Sketcher.Constraint("DistanceX", 0, 2, -1, 1, Q("4.5 in")),
    Sketcher.Constraint("DistanceY", 16, 1, -1, 1, Q("0.75 in")),
    Sketcher.Constraint("DistanceX", 2, 1, 2, 2, 10.069744),
    Sketcher.Constraint("DistanceX", 1, 3, 3, 3, 14.559872),
])
pocket3 = doc.addObject("PartDesign::Pocket", "Pocket002")
body2.addObject(pocket3)
pocket3.Profile = sketch5
pocket3.Type = "ThroughAll"
pocket3.Midplane = True

# Sketch on XZ plane
sketch6 = doc.addObject("Sketcher::SketchObject", "Sketch005")
body2.addObject(sketch6)
sketch6.AttachmentSupport = (doc.getObject("XZ_Plane001"), [""])
sketch6.MapMode = "FlatFace"
sketch6.AttachmentOffset = App.Placement(V(0, 0, -0.75 * 25.4), App.Rotation())
sketch6.addGeometry([
    Part.LineSegment(V(-304.8, -120.7, 0), V(-304.8, -114.3, 0)),  # 0
    Part.ArcOfCircle(Part.Circle(V(-304.8, -117.5, 0), V(0, 0, 1), 3.2), math.radians(-90), math.radians(90)),  # 1
    Part.LineSegment(V(-304.8, -95.2, 0), V(-304.8, -88.9, 0)),  # 2
    Part.ArcOfCircle(Part.Circle(V(-304.8, -92.1, 0), V(0, 0, 1), 3.2), math.radians(-90), math.radians(90)),  # 3
    Part.LineSegment(V(-304.8, -44.5, 0), V(-304.8, -38.1, 0)),  # 4
    Part.ArcOfCircle(Part.Circle(V(-304.8, -41.3, 0), V(0, 0, 1), 3.2), math.radians(-90), math.radians(90)),  # 5
    Part.LineSegment(V(-304.8, -19.1, 0), V(-304.8, -12.7, 0)),  # 6
    Part.ArcOfCircle(Part.Circle(V(-304.8, -15.9, 0), V(0, 0, 1), 3.2), math.radians(-90), math.radians(90)),  # 7
    Part.ArcOfCircle(Part.Circle(V(304.8, -155.6, 0), V(0, 0, 1), 3.2), math.radians(90), math.radians(270)),  # 8
    Part.LineSegment(V(304.8, -152.4, 0), V(304.8, -158.8, 0)),  # 9
    Part.ArcOfCircle(Part.Circle(V(304.8, -130.2, 0), V(0, 0, 1), 3.2), math.radians(90), math.radians(270)),  # 10
    Part.LineSegment(V(304.8, -127, 0), V(304.8, -133.3, 0)),  # 11
    Part.ArcOfCircle(Part.Circle(V(304.8, -54, 0), V(0, 0, 1), 3.2), math.radians(90), math.radians(270)),  # 12
    Part.LineSegment(V(304.8, -50.8, 0), V(304.8, -57.1, 0)),  # 13
    Part.ArcOfCircle(Part.Circle(V(304.8, -79.4, 0), V(0, 0, 1), 3.2), math.radians(90), math.radians(270)),  # 14
    Part.LineSegment(V(304.8, -76.2, 0), V(304.8, -82.5, 0)),  # 15
], False)
sketch6.addConstraint([
    Sketcher.Constraint("Coincident", 0, 1, 1, 1),
    Sketcher.Constraint("Coincident", 1, 2, 0, 2),
    Sketcher.Constraint("Coincident", 2, 1, 3, 1),
    Sketcher.Constraint("Coincident", 3, 2, 2, 2),
    Sketcher.Constraint("Coincident", 4, 1, 5, 1),
    Sketcher.Constraint("Coincident", 5, 2, 4, 2),
    Sketcher.Constraint("Coincident", 6, 1, 7, 1),
    Sketcher.Constraint("Coincident", 7, 2, 6, 2),
    Sketcher.Constraint("Coincident", 8, 1, 9, 1),
    Sketcher.Constraint("Coincident", 9, 2, 8, 2),
    Sketcher.Constraint("Coincident", 10, 1, 11, 1),
    Sketcher.Constraint("Coincident", 11, 2, 10, 2),
    Sketcher.Constraint("Coincident", 12, 1, 13, 1),
    Sketcher.Constraint("Coincident", 13, 2, 12, 2),
    Sketcher.Constraint("Coincident", 14, 1, 15, 1),
    Sketcher.Constraint("Coincident", 15, 2, 14, 2),
    Sketcher.Constraint("Vertical", 0),
    Sketcher.Constraint("Vertical", 2),
    Sketcher.Constraint("Vertical", 4),
    Sketcher.Constraint("Vertical", 6),
    Sketcher.Constraint("Vertical", 9),
    Sketcher.Constraint("Vertical", 11),
    Sketcher.Constraint("Vertical", 13),
    Sketcher.Constraint("Vertical", 15),
    Sketcher.Constraint("Equal", 1, 3),
    Sketcher.Constraint("Equal", 3, 5),
    Sketcher.Constraint("Equal", 5, 7),
    Sketcher.Constraint("Equal", 7, 8),
    Sketcher.Constraint("Equal", 8, 10),
    Sketcher.Constraint("Equal", 10, 12),
    Sketcher.Constraint("Equal", 12, 14),
    Sketcher.Constraint("Vertical", 1, 3, 3, 3),
    Sketcher.Constraint("Vertical", 3, 3, 5, 3),
    Sketcher.Constraint("Vertical", 5, 3, 7, 3),
    Sketcher.Constraint("Vertical", 8, 3, 10, 3),
    Sketcher.Constraint("Vertical", 10, 3, 12, 3),
    Sketcher.Constraint("Vertical", 12, 3, 14, 3),
    Sketcher.Constraint("Vertical", 7, 3, 0, 1),
    Sketcher.Constraint("Vertical", 1, 2, 2, 1),
    Sketcher.Constraint("Vertical", 3, 2, 4, 1),
    Sketcher.Constraint("Vertical", 5, 2, 6, 1),
    Sketcher.Constraint("Vertical", 14, 3, 8, 1),
    Sketcher.Constraint("Vertical", 9, 2, 10, 1),
    Sketcher.Constraint("Vertical", 11, 2, 12, 1),
    Sketcher.Constraint("Vertical", 13, 2, 14, 1),
    Sketcher.Constraint("DistanceX", 1, 3, -1, 1, Q("12 in")),
    Sketcher.Constraint("DistanceX", -1, 1, 8, 3, Q("12 in")),
    Sketcher.Constraint("DistanceY", 8, 1, -1, 1, Q("6 in")),
    Sketcher.Constraint("DistanceY", 10, 1, -1, 1, Q("5 in")),
    Sketcher.Constraint("DistanceY", 12, 1, -1, 1, Q("2 in")),
    Sketcher.Constraint("DistanceY", 14, 1, -1, 1, Q("3 in")),
    Sketcher.Constraint("Radius", 1, Q("0.125 in")),
    Sketcher.Constraint("DistanceY", 1, 3, 3, 3, Q("1 in")),
    Sketcher.Constraint("DistanceY", 3, 3, 5, 3, Q("2 in")),
    Sketcher.Constraint("DistanceY", 5, 3, 7, 3, Q("1 in")),
    Sketcher.Constraint("DistanceY", 1, 2, -1, 1, Q("4.5 in")),
])
pocket4 = doc.addObject("PartDesign::Pocket", "Pocket003")
body2.addObject(pocket4)
pocket4.Profile = sketch6
pocket4.Type = "ThroughAll"
pocket4.Reversed = True

# Sketch on XZ plane
sketch7 = doc.addObject("Sketcher::SketchObject", "Sketch006")
body2.addObject(sketch7)
sketch7.AttachmentSupport = (doc.getObject("XZ_Plane001"), [""])
sketch7.MapMode = "FlatFace"
sketch7.AttachmentOffset = App.Placement(V(0, 0, -0.75 * 25.4), App.Rotation())
add_polygon(sketch7, [(-121, -171), (-121, 0), (121, 0), (121, -171)])  # lines 0-3
sketch7.addConstraint([
    Sketcher.Constraint("Vertical", 0),
    Sketcher.Constraint("Horizontal", 1),
    Sketcher.Constraint("Vertical", 2),
    Sketcher.Constraint("Horizontal", 3),
    Sketcher.Constraint("Symmetric", 0, 2, 1, 2, -1, 1),
    Sketcher.Constraint("DistanceX", 1, 1, 1, 2, Q("9.5 in")),
    Sketcher.Constraint("DistanceY", 0, 1, 0, 2, Q("6.75 in")),
])
pad3 = doc.addObject("PartDesign::Pad", "Pad002")
body2.addObject(pad3)
pad3.Profile = sketch7
pad3.Length = Q("0.75 in")
mirroring.Visibility = False

doc.recompute()
